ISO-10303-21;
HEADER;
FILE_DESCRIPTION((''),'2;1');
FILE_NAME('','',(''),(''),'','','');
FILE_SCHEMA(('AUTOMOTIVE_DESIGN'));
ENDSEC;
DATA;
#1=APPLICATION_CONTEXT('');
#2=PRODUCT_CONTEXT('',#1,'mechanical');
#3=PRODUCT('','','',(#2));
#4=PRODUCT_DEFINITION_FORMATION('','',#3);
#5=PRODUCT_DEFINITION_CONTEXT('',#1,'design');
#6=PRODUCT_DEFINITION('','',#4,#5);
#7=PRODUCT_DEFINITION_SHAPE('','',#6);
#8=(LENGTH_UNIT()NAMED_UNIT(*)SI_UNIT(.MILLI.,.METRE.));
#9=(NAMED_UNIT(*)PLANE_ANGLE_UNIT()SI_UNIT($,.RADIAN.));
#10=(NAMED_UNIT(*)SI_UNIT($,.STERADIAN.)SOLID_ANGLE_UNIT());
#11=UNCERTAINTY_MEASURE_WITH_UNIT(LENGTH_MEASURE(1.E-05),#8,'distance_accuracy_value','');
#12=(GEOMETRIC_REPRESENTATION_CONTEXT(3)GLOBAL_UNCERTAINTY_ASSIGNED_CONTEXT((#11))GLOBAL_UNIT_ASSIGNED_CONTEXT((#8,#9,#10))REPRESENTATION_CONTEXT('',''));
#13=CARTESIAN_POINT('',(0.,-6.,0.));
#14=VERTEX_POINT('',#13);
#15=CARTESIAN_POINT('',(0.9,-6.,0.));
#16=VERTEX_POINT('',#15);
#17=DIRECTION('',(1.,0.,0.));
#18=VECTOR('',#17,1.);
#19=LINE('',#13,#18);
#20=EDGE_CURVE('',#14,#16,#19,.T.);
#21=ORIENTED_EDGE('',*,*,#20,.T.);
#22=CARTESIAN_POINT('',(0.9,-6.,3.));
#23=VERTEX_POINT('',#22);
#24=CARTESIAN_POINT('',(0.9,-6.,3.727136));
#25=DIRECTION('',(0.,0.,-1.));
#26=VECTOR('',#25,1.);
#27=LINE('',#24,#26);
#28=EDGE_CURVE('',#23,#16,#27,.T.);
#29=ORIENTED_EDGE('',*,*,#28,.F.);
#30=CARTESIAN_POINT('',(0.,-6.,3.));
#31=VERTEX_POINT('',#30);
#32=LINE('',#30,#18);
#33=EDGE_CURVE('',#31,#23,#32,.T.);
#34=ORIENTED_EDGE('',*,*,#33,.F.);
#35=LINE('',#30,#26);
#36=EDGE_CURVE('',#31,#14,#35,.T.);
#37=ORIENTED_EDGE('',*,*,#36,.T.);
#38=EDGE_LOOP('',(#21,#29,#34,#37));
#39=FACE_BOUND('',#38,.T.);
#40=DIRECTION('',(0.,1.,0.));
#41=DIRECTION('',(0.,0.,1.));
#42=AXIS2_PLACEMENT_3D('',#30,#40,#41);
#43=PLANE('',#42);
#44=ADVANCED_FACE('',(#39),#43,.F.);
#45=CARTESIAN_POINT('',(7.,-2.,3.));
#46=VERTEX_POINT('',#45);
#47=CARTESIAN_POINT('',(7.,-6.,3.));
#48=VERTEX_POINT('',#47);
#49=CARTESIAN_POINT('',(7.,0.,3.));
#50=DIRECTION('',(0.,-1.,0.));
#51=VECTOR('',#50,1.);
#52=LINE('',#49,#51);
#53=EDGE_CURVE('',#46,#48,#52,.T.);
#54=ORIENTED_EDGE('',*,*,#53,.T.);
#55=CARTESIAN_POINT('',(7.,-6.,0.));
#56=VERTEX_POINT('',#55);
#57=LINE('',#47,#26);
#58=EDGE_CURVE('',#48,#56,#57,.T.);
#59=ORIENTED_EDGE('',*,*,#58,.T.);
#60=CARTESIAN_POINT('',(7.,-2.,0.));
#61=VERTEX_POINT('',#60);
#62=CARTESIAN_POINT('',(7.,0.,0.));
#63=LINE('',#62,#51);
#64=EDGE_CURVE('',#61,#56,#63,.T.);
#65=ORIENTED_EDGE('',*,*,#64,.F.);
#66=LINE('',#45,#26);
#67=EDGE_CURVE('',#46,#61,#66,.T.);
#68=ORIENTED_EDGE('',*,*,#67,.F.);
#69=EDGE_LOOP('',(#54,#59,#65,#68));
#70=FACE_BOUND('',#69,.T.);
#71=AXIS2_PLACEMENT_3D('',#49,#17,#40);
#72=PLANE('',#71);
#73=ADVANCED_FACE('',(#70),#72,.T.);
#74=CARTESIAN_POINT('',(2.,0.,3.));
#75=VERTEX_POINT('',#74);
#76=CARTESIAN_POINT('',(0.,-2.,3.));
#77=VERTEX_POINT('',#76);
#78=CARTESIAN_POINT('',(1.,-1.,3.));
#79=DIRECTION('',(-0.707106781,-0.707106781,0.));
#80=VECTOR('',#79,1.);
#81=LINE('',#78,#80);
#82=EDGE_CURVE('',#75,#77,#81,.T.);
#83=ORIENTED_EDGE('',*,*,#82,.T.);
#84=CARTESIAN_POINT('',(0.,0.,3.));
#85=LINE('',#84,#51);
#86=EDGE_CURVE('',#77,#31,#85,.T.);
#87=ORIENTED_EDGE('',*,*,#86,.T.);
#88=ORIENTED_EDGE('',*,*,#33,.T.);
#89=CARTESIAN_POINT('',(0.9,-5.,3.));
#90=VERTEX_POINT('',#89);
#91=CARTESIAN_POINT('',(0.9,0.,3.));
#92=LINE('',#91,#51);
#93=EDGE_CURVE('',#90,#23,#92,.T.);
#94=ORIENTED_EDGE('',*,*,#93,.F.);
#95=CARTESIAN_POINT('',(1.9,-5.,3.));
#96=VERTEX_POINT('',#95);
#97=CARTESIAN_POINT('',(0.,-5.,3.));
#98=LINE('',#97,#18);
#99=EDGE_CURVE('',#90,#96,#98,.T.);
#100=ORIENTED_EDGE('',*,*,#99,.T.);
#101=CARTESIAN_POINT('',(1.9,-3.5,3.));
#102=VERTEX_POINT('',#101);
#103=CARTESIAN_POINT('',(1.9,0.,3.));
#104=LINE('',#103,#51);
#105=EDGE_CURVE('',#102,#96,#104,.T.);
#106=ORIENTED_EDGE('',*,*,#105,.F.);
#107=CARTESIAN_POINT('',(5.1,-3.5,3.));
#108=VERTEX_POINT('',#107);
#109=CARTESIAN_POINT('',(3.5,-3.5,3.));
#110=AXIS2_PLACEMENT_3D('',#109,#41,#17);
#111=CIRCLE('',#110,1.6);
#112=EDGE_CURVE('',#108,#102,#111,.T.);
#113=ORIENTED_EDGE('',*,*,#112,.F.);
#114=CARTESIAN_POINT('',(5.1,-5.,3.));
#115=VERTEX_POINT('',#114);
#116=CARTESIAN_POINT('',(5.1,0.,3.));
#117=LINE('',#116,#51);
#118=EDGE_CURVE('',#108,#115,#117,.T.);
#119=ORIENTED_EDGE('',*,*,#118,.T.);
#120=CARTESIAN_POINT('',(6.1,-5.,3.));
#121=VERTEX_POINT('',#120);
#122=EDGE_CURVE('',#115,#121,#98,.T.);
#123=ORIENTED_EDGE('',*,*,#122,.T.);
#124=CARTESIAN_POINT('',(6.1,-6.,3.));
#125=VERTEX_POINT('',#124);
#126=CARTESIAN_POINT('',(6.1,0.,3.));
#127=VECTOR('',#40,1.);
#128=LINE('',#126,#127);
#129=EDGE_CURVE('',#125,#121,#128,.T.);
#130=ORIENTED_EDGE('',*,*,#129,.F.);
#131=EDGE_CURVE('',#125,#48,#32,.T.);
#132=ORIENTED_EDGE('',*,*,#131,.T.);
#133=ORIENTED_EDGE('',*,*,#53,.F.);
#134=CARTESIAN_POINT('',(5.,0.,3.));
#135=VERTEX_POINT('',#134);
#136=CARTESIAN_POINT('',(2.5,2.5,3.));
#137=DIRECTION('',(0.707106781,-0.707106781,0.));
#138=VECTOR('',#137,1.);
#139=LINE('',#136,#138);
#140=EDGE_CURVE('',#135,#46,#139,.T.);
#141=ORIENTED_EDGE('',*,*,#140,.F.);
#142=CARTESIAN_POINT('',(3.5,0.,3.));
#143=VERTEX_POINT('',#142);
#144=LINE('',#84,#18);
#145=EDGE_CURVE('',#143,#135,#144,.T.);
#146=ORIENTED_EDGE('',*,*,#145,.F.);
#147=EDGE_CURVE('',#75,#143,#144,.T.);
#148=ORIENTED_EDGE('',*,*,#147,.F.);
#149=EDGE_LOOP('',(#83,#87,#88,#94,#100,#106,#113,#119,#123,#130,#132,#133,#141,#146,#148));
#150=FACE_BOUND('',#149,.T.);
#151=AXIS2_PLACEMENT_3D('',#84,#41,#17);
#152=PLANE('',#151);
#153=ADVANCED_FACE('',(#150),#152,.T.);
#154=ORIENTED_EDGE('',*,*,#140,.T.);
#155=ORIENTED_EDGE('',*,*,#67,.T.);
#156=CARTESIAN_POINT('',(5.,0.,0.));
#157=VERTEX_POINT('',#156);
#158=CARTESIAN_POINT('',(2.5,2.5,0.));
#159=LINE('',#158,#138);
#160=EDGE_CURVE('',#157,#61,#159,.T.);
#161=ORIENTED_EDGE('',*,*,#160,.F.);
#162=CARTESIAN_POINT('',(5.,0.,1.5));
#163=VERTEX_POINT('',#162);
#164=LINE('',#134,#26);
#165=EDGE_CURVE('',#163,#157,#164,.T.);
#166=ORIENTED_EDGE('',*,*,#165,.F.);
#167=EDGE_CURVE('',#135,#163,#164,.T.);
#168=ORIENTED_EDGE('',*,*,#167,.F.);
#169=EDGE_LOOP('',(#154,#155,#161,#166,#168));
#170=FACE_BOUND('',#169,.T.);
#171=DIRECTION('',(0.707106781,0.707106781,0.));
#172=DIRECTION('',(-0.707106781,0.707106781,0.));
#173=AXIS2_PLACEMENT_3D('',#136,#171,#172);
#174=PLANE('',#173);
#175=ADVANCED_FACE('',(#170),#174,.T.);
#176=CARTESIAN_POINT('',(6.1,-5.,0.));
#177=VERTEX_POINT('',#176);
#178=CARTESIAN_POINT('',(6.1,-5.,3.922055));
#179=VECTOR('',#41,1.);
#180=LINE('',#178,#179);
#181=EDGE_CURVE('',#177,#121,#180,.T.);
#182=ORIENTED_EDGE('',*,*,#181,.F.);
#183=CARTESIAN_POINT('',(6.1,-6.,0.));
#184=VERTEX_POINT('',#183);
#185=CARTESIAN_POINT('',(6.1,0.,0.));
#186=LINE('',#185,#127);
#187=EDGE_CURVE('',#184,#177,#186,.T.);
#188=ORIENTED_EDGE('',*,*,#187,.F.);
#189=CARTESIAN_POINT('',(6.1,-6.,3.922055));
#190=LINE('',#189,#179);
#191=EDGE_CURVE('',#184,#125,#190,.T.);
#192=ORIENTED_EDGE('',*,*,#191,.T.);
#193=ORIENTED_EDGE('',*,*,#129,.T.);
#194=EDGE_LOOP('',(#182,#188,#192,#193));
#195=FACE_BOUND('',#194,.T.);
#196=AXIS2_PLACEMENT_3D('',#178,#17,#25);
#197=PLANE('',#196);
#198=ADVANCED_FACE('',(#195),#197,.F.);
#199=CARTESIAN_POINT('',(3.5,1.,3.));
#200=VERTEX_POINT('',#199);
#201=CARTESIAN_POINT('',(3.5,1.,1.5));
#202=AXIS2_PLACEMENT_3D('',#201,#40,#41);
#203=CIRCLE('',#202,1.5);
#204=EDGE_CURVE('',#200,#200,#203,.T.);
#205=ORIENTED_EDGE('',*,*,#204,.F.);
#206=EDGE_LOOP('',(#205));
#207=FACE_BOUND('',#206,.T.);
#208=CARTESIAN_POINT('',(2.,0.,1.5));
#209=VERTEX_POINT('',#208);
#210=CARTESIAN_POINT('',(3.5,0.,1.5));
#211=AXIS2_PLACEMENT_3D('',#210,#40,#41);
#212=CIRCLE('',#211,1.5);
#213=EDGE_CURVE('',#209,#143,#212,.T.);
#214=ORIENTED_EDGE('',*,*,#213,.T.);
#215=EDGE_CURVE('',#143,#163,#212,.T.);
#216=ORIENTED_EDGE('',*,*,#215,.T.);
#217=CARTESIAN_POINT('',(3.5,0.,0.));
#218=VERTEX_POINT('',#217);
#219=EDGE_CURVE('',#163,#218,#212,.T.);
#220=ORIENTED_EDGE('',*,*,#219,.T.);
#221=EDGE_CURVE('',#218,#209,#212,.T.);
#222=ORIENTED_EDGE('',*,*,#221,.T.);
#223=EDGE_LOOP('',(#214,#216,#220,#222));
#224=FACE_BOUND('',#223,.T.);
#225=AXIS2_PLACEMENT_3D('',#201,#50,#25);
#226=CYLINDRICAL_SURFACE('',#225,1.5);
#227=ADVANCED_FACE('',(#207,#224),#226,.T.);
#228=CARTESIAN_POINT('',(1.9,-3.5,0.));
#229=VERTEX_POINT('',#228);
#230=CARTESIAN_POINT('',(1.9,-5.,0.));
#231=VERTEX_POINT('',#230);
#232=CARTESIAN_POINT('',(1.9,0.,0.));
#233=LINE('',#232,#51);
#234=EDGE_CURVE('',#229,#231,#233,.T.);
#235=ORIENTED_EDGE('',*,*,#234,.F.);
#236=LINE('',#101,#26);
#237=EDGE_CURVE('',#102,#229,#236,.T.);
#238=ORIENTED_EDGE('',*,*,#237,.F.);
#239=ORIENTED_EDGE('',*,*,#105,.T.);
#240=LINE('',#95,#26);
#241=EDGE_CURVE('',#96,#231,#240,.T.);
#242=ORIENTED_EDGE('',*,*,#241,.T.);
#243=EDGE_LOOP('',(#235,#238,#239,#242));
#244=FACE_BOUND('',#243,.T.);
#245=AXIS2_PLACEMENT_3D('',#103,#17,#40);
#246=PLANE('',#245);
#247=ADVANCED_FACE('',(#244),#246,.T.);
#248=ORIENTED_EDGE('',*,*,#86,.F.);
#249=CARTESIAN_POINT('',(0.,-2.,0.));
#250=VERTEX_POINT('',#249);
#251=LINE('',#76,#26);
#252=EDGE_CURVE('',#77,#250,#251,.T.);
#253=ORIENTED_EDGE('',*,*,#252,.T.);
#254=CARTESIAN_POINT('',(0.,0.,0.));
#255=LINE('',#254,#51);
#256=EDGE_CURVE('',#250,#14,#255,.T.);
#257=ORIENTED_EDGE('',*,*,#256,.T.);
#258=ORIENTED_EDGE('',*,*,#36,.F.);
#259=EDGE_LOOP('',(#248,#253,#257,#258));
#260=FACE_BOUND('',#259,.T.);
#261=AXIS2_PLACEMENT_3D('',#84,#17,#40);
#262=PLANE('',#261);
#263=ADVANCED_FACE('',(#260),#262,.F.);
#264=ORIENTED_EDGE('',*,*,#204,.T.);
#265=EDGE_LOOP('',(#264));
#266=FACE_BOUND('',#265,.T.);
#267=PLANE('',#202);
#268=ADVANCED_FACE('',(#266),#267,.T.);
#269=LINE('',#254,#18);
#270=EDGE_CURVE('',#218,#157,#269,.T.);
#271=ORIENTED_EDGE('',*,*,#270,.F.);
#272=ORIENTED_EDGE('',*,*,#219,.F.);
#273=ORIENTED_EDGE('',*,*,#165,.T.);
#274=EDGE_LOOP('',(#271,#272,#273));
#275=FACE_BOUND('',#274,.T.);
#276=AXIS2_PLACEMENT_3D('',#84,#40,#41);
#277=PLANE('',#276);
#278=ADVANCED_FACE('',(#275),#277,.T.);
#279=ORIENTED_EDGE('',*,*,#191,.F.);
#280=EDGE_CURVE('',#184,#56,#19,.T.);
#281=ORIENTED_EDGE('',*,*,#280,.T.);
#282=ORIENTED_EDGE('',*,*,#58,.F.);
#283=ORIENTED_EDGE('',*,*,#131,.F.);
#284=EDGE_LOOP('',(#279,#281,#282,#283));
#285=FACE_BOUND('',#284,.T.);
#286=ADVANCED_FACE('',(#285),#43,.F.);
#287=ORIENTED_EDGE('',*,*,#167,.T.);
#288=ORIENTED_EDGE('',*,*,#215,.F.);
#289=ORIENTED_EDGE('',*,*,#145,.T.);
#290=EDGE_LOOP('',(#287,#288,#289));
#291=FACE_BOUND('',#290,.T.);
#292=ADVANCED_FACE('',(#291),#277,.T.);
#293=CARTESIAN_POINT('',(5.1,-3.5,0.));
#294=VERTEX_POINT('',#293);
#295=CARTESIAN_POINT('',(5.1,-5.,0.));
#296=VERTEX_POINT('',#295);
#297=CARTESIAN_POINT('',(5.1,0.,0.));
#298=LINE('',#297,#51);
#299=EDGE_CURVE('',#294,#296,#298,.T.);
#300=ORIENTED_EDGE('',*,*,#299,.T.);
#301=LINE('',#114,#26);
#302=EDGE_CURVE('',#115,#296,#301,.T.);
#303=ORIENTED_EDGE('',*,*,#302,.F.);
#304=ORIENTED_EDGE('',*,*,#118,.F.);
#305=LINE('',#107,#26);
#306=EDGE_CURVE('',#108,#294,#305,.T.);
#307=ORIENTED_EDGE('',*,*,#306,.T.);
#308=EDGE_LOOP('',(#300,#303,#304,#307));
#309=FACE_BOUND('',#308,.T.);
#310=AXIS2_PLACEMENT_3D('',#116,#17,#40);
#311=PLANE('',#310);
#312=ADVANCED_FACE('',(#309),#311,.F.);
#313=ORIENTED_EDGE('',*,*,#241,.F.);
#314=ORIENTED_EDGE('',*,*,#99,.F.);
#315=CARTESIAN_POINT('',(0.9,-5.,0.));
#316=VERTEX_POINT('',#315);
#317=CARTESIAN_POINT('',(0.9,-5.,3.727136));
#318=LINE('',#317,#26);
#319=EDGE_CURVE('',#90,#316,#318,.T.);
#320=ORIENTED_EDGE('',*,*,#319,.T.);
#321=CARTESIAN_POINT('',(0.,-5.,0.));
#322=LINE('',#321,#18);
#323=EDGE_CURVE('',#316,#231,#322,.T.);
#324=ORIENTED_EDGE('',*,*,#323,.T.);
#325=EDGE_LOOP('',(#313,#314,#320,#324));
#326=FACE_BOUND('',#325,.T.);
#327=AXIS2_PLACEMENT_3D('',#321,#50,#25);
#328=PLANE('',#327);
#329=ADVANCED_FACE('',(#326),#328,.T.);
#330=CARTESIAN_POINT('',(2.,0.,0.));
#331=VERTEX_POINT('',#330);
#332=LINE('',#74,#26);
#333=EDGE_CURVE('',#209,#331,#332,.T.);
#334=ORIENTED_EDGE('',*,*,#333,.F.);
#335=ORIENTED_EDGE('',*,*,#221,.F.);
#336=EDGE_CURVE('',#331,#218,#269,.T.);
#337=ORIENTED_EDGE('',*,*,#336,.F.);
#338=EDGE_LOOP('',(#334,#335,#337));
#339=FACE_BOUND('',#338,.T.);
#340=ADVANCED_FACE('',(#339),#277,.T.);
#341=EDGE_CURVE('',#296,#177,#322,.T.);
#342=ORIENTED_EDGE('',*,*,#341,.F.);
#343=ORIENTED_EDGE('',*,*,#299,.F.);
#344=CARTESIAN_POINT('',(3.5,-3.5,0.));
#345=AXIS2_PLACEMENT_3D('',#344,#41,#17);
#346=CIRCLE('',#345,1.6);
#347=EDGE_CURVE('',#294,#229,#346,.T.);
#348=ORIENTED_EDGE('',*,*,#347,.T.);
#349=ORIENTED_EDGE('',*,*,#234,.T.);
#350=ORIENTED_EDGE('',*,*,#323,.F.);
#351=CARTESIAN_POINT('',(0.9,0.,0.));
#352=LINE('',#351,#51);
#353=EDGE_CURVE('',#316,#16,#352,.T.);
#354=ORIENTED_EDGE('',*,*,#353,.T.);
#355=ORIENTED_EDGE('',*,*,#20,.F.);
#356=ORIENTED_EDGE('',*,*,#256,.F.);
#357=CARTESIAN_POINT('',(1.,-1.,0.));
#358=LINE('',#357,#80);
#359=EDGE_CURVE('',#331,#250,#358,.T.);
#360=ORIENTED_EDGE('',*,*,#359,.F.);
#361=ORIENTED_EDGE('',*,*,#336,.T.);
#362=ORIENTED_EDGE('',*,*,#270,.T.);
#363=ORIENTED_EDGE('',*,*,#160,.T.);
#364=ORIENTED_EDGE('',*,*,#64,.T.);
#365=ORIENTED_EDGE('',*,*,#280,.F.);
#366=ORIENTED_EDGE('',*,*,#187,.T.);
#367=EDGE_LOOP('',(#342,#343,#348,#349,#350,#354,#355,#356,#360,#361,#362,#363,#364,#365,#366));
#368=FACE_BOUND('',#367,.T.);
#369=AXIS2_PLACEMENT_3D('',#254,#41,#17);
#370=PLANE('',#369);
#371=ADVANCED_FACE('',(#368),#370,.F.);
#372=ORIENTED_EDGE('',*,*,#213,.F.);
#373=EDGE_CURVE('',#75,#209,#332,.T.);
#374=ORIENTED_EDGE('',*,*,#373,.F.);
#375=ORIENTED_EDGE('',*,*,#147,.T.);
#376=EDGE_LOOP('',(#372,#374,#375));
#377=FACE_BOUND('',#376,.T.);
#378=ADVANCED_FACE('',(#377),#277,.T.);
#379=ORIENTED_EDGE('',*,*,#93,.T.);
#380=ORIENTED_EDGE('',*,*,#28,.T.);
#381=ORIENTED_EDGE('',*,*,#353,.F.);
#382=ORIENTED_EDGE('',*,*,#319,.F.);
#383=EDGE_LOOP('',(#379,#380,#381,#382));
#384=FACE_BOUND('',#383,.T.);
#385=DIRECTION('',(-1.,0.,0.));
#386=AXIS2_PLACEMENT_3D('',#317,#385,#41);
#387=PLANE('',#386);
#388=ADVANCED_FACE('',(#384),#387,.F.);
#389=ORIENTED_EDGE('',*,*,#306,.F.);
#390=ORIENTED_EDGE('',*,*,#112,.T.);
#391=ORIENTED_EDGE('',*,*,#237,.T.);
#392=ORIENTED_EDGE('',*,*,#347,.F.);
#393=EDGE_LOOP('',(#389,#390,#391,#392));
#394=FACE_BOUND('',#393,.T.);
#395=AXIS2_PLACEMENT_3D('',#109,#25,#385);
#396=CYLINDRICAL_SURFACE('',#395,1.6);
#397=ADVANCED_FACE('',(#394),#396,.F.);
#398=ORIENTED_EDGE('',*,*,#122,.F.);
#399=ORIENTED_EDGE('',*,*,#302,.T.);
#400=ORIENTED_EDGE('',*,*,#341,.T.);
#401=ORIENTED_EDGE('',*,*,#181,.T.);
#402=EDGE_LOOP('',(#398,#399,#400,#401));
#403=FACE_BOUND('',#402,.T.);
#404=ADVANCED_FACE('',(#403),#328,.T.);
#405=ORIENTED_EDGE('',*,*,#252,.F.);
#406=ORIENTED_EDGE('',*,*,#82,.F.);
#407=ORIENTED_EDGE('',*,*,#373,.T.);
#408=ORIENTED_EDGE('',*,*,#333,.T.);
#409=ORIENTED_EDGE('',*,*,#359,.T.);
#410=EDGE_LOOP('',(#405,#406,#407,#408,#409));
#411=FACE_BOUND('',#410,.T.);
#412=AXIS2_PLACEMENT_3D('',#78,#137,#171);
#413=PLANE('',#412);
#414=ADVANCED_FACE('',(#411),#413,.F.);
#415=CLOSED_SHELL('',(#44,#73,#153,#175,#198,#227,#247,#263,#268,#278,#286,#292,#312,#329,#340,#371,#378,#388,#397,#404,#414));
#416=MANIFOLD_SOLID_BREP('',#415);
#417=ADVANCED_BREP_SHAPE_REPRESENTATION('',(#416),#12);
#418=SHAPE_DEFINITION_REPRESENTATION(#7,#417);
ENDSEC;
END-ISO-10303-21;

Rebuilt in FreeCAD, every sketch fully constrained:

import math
import FreeCAD as App
import Part
import Sketcher
from FreeCAD import Vector
Q = App.Units.Quantity

doc = App.newDocument("Part")
body = doc.addObject("PartDesign::Body", "Body")

sketch1 = body.newObject("Sketcher::SketchObject", "Sketch")
sketch1.AttachmentSupport = (doc.getObject("XY_Plane"), [""])
sketch1.MapMode = "FlatFace"
sketch1.addGeometry(Part.LineSegment(Vector(5, 0, 0), Vector(2, 0, 0)), False)
sketch1.addGeometry(Part.LineSegment(Vector(2, 0, 0), Vector(0, -2, 0)), False)
sketch1.addGeometry(Part.LineSegment(Vector(0, -2, 0), Vector(0, -6, 0)), False)
sketch1.addGeometry(Part.LineSegment(Vector(0, -6, 0), Vector(1.9, -6, 0)), False)
sketch1.addGeometry(Part.LineSegment(Vector(1.9, -6, 0), Vector(1.9, -3.5, 0)), False)
sketch1.addGeometry(Part.ArcOfCircle(Part.Circle(Vector(3.5, -3.5, 0), Vector(0, 0, 1), 1.6), math.radians(0), math.radians(180)), False)
sketch1.addGeometry(Part.LineSegment(Vector(5.1, -3.5, 0), Vector(5.1, -6, 0)), False)
sketch1.addGeometry(Part.LineSegment(Vector(5.1, -6, 0), Vector(7, -6, 0)), False)
sketch1.addGeometry(Part.LineSegment(Vector(7, -6, 0), Vector(7, -2, 0)), False)
sketch1.addGeometry(Part.LineSegment(Vector(7, -2, 0), Vector(5, 0, 0)), False)
sketch1.addConstraint(Sketcher.Constraint("Coincident", 0, 2, 1, 1))
sketch1.addConstraint(Sketcher.Constraint("Coincident", 1, 2, 2, 1))
sketch1.addConstraint(Sketcher.Constraint("Coincident", 2, 2, 3, 1))
sketch1.addConstraint(Sketcher.Constraint("Coincident", 3, 2, 4, 1))
sketch1.addConstraint(Sketcher.Constraint("Tangent", 4, 2, 5, 2))
sketch1.addConstraint(Sketcher.Constraint("Tangent", 5, 1, 6, 1))
sketch1.addConstraint(Sketcher.Constraint("Coincident", 6, 2, 7, 1))
sketch1.addConstraint(Sketcher.Constraint("Coincident", 7, 2, 8, 1))
sketch1.addConstraint(Sketcher.Constraint("Coincident", 8, 2, 9, 1))
sketch1.addConstraint(Sketcher.Constraint("Coincident", 9, 2, 0, 1))
sketch1.addConstraint(Sketcher.Constraint("Horizontal", 0))
sketch1.addConstraint(Sketcher.Constraint("Vertical", 2))
sketch1.addConstraint(Sketcher.Constraint("Horizontal", 3))
sketch1.addConstraint(Sketcher.Constraint("Vertical", 4))
sketch1.addConstraint(Sketcher.Constraint("Vertical", 6))
sketch1.addConstraint(Sketcher.Constraint("Horizontal", 7))
sketch1.addConstraint(Sketcher.Constraint("Vertical", 8))
sketch1.addConstraint(Sketcher.Constraint("PointOnObject", 0, 2, -1))
sketch1.addConstraint(Sketcher.Constraint("PointOnObject", 1, 2, -2))
sketch1.addConstraint(Sketcher.Constraint("Perpendicular", 1, 9))
sketch1.addConstraint(Sketcher.Constraint("Horizontal", 3, 2, 6, 2))
sketch1.addConstraint(Sketcher.Constraint("Horizontal", 1, 2, 8, 2))
sketch1.addConstraint(Sketcher.Constraint("Equal", 3, 7))
sketch1.addConstraint(Sketcher.Constraint("Equal", 1, 9))
sketch1.addConstraint(Sketcher.Constraint("Radius", 5, Q("1.6 mm")))
sketch1.addConstraint(Sketcher.Constraint("DistanceX", 0, 2, 0, 1, Q("3 mm")))
sketch1.addConstraint(Sketcher.Constraint("DistanceY", 2, 2, 2, 1, Q("4 mm")))
sketch1.addConstraint(Sketcher.Constraint("DistanceX", 3, 1, 3, 2, Q("1.9 mm")))
sketch1.addConstraint(Sketcher.Constraint("DistanceY", 4, 1, 4, 2, Q("2.5 mm")))
pad1 = body.newObject("PartDesign::Pad", "Pad")
pad1.Profile = sketch1
pad1.Length = 3

sketch2 = body.newObject("Sketcher::SketchObject", "Sketch001")
sketch2.AttachmentSupport = (doc.getObject("XZ_Plane"), [""])
sketch2.MapMode = "FlatFace"
sketch2.addGeometry(Part.Circle(Vector(3.5, 1.5, 0), Vector(0, 0, 1), 1.5), False)
sketch2.addConstraint(Sketcher.Constraint("Diameter", 0, Q("3 mm")))
sketch2.addConstraint(Sketcher.Constraint("DistanceX", -1, 1, 0, 3, Q("3.5 mm")))
sketch2.addConstraint(Sketcher.Constraint("DistanceY", -1, 1, 0, 3, Q("1.5 mm")))
pad2 = body.newObject("PartDesign::Pad", "Pad001")
pad2.Profile = sketch2
pad2.Length = 1
pad2.Reversed = True

sketch3 = body.newObject("Sketcher::SketchObject", "Sketch002")
sketch3.AttachmentSupport = (doc.getObject("XZ_Plane"), [""])
sketch3.MapMode = "FlatFace"
sketch3.AttachmentOffset = App.Placement(Vector(0, 0, 6), App.Rotation())
sketch3.addGeometry(Part.LineSegment(Vector(0.9, 3.7, 0), Vector(0.9, -0.6, 0)), False)
sketch3.addGeometry(Part.LineSegment(Vector(0.9, -0.6, 0), Vector(2.7, -0.6, 0)), False)
sketch3.addGeometry(Part.LineSegment(Vector(2.7, -0.6, 0), Vector(2.7, 3.7, 0)), False)
sketch3.addGeometry(Part.LineSegment(Vector(2.7, 3.7, 0), Vector(0.9, 3.7, 0)), False)
sketch3.addGeometry(Part.LineSegment(Vector(4.6, 3.9, 0), Vector(4.6, -0.9, 0)), False)
sketch3.addGeometry(Part.LineSegment(Vector(4.6, -0.9, 0), Vector(6.1, -0.9, 0)), False)
sketch3.addGeometry(Part.LineSegment(Vector(6.1, -0.9, 0), Vector(6.1, 3.9, 0)), False)
sketch3.addGeometry(Part.LineSegment(Vector(6.1, 3.9, 0), Vector(4.6, 3.9, 0)), False)
sketch3.addConstraint(Sketcher.Constraint("Coincident", 0, 2, 1, 1))
sketch3.addConstraint(Sketcher.Constraint("Coincident", 1, 2, 2, 1))
sketch3.addConstraint(Sketcher.Constraint("Coincident", 2, 2, 3, 1))
sketch3.addConstraint(Sketcher.Constraint("Coincident", 3, 2, 0, 1))
sketch3.addConstraint(Sketcher.Constraint("Coincident", 4, 2, 5, 1))
sketch3.addConstraint(Sketcher.Constraint("Coincident", 5, 2, 6, 1))
sketch3.addConstraint(Sketcher.Constraint("Coincident", 6, 2, 7, 1))
sketch3.addConstraint(Sketcher.Constraint("Coincident", 7, 2, 4, 1))
sketch3.addConstraint(Sketcher.Constraint("Vertical", 0))
sketch3.addConstraint(Sketcher.Constraint("Horizontal", 1))
sketch3.addConstraint(Sketcher.Constraint("Vertical", 2))
sketch3.addConstraint(Sketcher.Constraint("Horizontal", 3))
sketch3.addConstraint(Sketcher.Constraint("Vertical", 4))
sketch3.addConstraint(Sketcher.Constraint("Horizontal", 5))
sketch3.addConstraint(Sketcher.Constraint("Vertical", 6))
sketch3.addConstraint(Sketcher.Constraint("Horizontal", 7))
sketch3.addConstraint(Sketcher.Constraint("DistanceX", -1, 1, 0, 2, Q("0.9 mm")))
sketch3.addConstraint(Sketcher.Constraint("DistanceX", -1, 1, 5, 2, Q("6.1 mm")))
sketch3.addConstraint(Sketcher.Constraint("DistanceX", 1, 1, 1, 2, Q("1.758291 mm")))
sketch3.addConstraint(Sketcher.Constraint("DistanceY", 0, 2, 0, 1, Q("4.288229 mm")))
sketch3.addConstraint(Sketcher.Constraint("DistanceY", 4, 2, -1, 1, Q("0.864301 mm")))
sketch3.addConstraint(Sketcher.Constraint("DistanceX", 5, 1, 5, 2, Q("1.505617 mm")))
sketch3.addConstraint(Sketcher.Constraint("DistanceY", 4, 2, 4, 1, Q("4.786357 mm")))
sketch3.addConstraint(Sketcher.Constraint("DistanceY", 4, 2, 1, 2, Q("0.303208 mm")))
pocket1 = body.newObject("PartDesign::Pocket", "Pocket")
pocket1.Profile = sketch3
pocket1.Length = 1

doc.recompute()
